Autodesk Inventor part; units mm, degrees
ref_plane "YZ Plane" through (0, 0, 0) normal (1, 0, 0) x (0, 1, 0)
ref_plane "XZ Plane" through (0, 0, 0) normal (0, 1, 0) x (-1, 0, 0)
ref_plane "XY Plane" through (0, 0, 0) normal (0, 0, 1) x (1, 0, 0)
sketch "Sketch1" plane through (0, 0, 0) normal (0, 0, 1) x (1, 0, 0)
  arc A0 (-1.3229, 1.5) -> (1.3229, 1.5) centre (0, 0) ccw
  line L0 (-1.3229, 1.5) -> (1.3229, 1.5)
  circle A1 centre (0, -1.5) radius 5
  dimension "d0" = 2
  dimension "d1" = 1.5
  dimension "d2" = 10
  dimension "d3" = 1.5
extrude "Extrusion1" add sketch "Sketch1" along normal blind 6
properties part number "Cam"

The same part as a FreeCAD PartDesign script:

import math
import FreeCAD as App
import Part
import Sketcher
Q = App.Units.Quantity

doc = App.newDocument("Part")
body = doc.addObject("PartDesign::Body", "Body")

sketch1 = doc.addObject("Sketcher::SketchObject", "Sketch")
body.addObject(sketch1)
sketch1.AttachmentSupport = (doc.XY_Plane, [""])
sketch1.MapMode = "FlatFace"
sketch1.addGeometry([
    Part.Circle(App.Vector(0, -1.5, 0), App.Vector(0, 0, 1), 5),
    Part.ArcOfCircle(Part.Circle(App.Vector(0, 0, 0), App.Vector(0, 0, 1), 2.000016), math.radians(131.410145), math.radians(408.589855)),
    Part.LineSegment(App.Vector(-1.3229, 1.5, 0), App.Vector(1.3229, 1.5, 0)),
], False)
sketch1.addConstraint([
    Sketcher.Constraint("Coincident", 1, 1, 2, 1),
    Sketcher.Constraint("Coincident", 2, 2, 1, 2),
    Sketcher.Constraint("Horizontal", 2),
    Sketcher.Constraint("Coincident", 1, 3, -1, 1),
    Sketcher.Constraint("PointOnObject", 0, 3, -2),
    Sketcher.Constraint("Diameter", 0, Q("10 mm")),
    Sketcher.Constraint("Radius", 1, Q("2 mm")),
    Sketcher.Constraint("DistanceY", 0, 3, -1, 1, Q("1.5 mm")),
    Sketcher.Constraint("DistanceY", -1, 1, 1, 1, Q("1.5 mm")),
])
pad1 = doc.addObject("PartDesign::Pad", "Pad")
body.addObject(pad1)
pad1.Profile = sketch1
pad1.Length = 6

doc.recompute()
